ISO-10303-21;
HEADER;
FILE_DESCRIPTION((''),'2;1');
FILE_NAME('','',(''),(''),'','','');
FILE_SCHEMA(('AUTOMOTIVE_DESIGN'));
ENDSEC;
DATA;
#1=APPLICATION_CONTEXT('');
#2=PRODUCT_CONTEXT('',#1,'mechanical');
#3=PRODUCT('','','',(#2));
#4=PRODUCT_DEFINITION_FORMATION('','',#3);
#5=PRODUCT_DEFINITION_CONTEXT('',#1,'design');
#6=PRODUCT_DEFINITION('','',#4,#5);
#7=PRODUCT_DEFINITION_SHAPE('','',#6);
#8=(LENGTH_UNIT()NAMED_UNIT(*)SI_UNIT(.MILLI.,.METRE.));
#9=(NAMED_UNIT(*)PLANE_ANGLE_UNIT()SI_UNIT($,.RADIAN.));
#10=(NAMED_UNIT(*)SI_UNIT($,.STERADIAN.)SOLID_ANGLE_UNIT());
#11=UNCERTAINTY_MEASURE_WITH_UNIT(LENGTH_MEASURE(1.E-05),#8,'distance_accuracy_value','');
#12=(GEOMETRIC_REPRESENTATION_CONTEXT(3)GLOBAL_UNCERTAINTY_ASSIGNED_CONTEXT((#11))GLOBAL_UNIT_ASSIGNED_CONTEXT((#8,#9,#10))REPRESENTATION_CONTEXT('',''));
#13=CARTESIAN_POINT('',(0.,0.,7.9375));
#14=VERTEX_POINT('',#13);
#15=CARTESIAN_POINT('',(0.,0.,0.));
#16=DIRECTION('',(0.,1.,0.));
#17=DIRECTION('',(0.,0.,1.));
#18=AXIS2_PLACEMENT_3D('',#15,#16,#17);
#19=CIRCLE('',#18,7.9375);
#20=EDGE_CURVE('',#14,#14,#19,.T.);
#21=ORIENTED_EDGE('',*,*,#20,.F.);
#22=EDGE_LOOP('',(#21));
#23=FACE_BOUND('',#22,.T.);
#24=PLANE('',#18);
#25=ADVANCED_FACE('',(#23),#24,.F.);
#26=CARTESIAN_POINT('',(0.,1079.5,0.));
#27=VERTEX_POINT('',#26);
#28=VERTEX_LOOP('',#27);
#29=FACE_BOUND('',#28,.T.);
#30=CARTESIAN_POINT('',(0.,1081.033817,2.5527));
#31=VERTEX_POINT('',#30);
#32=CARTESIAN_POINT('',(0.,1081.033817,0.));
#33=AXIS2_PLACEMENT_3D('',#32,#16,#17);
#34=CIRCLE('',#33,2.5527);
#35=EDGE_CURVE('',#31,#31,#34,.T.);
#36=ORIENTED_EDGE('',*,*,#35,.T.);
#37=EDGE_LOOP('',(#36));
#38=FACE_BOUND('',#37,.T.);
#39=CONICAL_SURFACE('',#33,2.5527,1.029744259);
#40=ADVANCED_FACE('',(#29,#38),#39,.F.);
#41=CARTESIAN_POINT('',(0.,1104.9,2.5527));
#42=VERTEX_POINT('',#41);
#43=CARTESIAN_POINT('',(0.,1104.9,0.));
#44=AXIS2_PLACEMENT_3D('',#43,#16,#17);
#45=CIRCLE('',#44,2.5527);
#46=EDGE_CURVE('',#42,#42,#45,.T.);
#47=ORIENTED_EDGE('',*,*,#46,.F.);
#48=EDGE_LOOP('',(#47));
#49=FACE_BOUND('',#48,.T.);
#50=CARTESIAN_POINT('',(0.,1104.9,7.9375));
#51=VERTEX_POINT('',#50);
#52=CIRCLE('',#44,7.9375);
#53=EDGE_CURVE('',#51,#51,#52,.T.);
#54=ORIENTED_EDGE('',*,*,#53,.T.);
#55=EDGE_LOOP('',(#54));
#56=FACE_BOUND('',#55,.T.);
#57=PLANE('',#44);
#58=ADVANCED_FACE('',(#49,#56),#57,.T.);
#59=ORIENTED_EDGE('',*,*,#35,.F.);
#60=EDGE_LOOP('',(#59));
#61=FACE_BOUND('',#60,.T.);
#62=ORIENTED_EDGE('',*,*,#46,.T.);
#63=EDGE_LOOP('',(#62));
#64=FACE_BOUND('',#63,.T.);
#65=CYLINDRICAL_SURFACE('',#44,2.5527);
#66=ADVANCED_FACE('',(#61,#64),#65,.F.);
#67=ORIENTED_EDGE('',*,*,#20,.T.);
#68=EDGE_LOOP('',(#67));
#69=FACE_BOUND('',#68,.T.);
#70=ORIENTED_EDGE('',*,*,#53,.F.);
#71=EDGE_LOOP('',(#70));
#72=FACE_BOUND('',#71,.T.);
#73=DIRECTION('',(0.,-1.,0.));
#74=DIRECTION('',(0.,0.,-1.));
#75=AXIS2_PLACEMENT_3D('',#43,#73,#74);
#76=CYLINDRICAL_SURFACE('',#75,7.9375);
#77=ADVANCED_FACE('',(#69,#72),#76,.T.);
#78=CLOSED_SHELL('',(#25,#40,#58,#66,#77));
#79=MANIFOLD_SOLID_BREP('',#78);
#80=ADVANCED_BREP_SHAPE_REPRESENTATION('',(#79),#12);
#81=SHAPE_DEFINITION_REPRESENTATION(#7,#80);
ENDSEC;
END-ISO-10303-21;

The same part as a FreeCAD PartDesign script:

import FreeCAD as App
import Part
import Sketcher

V = App.Vector
Q = App.Units.Quantity

doc = App.newDocument("Part")
body = doc.addObject("PartDesign::Body", "Body")

sketch1 = doc.addObject("Sketcher::SketchObject", "Sketch")
body.addObject(sketch1)
sketch1.AttachmentSupport = (doc.XZ_Plane, [""])
sketch1.MapMode = "FlatFace"
sketch1.addGeometry(Part.Circle(V(0, 0, 0), V(0, 0, 1), 8), False)
sketch1.addConstraint(Sketcher.Constraint("Coincident", 0, 3, -1, 1))
sketch1.addConstraint(Sketcher.Constraint("Diameter", 0, Q("0.625 in")))
pad1 = doc.addObject("PartDesign::Pad", "Pad")
body.addObject(pad1)
pad1.Profile = sketch1
pad1.Length = Q("43.5 in")
pad1.Reversed = True

sketch2 = doc.addObject("Sketcher::SketchObject", "Sketch001")
body.addObject(sketch2)
sketch2.AttachmentSupport = (doc.XZ_Plane, [""])
sketch2.MapMode = "FlatFace"
sketch2.AttachmentOffset = App.Placement(V(0, 0, -43.5 * 25.4), App.Rotation())
sketch2.addGeometry(Part.Circle(V(0, 0, 0), V(0, 0, 1), 2.6), False)
sketch2.addConstraint(Sketcher.Constraint("Coincident", 0, 3, -1, 1))
sketch2.addConstraint(Sketcher.Constraint("Diameter", 0, Q("0.201 in")))
doc.recompute()
hole = doc.addObject("PartDesign::Hole", "Hole")
body.addObject(hole)
hole.Profile = sketch2
hole.ThreadType = "None"
hole.Diameter = Q("0.201 in")
hole.DepthType = "Dimension"
hole.Depth = 23.866183
hole.DrillPoint = "Angled"
hole.DrillPointAngle = 118
hole.Reversed = True

doc.recompute()
